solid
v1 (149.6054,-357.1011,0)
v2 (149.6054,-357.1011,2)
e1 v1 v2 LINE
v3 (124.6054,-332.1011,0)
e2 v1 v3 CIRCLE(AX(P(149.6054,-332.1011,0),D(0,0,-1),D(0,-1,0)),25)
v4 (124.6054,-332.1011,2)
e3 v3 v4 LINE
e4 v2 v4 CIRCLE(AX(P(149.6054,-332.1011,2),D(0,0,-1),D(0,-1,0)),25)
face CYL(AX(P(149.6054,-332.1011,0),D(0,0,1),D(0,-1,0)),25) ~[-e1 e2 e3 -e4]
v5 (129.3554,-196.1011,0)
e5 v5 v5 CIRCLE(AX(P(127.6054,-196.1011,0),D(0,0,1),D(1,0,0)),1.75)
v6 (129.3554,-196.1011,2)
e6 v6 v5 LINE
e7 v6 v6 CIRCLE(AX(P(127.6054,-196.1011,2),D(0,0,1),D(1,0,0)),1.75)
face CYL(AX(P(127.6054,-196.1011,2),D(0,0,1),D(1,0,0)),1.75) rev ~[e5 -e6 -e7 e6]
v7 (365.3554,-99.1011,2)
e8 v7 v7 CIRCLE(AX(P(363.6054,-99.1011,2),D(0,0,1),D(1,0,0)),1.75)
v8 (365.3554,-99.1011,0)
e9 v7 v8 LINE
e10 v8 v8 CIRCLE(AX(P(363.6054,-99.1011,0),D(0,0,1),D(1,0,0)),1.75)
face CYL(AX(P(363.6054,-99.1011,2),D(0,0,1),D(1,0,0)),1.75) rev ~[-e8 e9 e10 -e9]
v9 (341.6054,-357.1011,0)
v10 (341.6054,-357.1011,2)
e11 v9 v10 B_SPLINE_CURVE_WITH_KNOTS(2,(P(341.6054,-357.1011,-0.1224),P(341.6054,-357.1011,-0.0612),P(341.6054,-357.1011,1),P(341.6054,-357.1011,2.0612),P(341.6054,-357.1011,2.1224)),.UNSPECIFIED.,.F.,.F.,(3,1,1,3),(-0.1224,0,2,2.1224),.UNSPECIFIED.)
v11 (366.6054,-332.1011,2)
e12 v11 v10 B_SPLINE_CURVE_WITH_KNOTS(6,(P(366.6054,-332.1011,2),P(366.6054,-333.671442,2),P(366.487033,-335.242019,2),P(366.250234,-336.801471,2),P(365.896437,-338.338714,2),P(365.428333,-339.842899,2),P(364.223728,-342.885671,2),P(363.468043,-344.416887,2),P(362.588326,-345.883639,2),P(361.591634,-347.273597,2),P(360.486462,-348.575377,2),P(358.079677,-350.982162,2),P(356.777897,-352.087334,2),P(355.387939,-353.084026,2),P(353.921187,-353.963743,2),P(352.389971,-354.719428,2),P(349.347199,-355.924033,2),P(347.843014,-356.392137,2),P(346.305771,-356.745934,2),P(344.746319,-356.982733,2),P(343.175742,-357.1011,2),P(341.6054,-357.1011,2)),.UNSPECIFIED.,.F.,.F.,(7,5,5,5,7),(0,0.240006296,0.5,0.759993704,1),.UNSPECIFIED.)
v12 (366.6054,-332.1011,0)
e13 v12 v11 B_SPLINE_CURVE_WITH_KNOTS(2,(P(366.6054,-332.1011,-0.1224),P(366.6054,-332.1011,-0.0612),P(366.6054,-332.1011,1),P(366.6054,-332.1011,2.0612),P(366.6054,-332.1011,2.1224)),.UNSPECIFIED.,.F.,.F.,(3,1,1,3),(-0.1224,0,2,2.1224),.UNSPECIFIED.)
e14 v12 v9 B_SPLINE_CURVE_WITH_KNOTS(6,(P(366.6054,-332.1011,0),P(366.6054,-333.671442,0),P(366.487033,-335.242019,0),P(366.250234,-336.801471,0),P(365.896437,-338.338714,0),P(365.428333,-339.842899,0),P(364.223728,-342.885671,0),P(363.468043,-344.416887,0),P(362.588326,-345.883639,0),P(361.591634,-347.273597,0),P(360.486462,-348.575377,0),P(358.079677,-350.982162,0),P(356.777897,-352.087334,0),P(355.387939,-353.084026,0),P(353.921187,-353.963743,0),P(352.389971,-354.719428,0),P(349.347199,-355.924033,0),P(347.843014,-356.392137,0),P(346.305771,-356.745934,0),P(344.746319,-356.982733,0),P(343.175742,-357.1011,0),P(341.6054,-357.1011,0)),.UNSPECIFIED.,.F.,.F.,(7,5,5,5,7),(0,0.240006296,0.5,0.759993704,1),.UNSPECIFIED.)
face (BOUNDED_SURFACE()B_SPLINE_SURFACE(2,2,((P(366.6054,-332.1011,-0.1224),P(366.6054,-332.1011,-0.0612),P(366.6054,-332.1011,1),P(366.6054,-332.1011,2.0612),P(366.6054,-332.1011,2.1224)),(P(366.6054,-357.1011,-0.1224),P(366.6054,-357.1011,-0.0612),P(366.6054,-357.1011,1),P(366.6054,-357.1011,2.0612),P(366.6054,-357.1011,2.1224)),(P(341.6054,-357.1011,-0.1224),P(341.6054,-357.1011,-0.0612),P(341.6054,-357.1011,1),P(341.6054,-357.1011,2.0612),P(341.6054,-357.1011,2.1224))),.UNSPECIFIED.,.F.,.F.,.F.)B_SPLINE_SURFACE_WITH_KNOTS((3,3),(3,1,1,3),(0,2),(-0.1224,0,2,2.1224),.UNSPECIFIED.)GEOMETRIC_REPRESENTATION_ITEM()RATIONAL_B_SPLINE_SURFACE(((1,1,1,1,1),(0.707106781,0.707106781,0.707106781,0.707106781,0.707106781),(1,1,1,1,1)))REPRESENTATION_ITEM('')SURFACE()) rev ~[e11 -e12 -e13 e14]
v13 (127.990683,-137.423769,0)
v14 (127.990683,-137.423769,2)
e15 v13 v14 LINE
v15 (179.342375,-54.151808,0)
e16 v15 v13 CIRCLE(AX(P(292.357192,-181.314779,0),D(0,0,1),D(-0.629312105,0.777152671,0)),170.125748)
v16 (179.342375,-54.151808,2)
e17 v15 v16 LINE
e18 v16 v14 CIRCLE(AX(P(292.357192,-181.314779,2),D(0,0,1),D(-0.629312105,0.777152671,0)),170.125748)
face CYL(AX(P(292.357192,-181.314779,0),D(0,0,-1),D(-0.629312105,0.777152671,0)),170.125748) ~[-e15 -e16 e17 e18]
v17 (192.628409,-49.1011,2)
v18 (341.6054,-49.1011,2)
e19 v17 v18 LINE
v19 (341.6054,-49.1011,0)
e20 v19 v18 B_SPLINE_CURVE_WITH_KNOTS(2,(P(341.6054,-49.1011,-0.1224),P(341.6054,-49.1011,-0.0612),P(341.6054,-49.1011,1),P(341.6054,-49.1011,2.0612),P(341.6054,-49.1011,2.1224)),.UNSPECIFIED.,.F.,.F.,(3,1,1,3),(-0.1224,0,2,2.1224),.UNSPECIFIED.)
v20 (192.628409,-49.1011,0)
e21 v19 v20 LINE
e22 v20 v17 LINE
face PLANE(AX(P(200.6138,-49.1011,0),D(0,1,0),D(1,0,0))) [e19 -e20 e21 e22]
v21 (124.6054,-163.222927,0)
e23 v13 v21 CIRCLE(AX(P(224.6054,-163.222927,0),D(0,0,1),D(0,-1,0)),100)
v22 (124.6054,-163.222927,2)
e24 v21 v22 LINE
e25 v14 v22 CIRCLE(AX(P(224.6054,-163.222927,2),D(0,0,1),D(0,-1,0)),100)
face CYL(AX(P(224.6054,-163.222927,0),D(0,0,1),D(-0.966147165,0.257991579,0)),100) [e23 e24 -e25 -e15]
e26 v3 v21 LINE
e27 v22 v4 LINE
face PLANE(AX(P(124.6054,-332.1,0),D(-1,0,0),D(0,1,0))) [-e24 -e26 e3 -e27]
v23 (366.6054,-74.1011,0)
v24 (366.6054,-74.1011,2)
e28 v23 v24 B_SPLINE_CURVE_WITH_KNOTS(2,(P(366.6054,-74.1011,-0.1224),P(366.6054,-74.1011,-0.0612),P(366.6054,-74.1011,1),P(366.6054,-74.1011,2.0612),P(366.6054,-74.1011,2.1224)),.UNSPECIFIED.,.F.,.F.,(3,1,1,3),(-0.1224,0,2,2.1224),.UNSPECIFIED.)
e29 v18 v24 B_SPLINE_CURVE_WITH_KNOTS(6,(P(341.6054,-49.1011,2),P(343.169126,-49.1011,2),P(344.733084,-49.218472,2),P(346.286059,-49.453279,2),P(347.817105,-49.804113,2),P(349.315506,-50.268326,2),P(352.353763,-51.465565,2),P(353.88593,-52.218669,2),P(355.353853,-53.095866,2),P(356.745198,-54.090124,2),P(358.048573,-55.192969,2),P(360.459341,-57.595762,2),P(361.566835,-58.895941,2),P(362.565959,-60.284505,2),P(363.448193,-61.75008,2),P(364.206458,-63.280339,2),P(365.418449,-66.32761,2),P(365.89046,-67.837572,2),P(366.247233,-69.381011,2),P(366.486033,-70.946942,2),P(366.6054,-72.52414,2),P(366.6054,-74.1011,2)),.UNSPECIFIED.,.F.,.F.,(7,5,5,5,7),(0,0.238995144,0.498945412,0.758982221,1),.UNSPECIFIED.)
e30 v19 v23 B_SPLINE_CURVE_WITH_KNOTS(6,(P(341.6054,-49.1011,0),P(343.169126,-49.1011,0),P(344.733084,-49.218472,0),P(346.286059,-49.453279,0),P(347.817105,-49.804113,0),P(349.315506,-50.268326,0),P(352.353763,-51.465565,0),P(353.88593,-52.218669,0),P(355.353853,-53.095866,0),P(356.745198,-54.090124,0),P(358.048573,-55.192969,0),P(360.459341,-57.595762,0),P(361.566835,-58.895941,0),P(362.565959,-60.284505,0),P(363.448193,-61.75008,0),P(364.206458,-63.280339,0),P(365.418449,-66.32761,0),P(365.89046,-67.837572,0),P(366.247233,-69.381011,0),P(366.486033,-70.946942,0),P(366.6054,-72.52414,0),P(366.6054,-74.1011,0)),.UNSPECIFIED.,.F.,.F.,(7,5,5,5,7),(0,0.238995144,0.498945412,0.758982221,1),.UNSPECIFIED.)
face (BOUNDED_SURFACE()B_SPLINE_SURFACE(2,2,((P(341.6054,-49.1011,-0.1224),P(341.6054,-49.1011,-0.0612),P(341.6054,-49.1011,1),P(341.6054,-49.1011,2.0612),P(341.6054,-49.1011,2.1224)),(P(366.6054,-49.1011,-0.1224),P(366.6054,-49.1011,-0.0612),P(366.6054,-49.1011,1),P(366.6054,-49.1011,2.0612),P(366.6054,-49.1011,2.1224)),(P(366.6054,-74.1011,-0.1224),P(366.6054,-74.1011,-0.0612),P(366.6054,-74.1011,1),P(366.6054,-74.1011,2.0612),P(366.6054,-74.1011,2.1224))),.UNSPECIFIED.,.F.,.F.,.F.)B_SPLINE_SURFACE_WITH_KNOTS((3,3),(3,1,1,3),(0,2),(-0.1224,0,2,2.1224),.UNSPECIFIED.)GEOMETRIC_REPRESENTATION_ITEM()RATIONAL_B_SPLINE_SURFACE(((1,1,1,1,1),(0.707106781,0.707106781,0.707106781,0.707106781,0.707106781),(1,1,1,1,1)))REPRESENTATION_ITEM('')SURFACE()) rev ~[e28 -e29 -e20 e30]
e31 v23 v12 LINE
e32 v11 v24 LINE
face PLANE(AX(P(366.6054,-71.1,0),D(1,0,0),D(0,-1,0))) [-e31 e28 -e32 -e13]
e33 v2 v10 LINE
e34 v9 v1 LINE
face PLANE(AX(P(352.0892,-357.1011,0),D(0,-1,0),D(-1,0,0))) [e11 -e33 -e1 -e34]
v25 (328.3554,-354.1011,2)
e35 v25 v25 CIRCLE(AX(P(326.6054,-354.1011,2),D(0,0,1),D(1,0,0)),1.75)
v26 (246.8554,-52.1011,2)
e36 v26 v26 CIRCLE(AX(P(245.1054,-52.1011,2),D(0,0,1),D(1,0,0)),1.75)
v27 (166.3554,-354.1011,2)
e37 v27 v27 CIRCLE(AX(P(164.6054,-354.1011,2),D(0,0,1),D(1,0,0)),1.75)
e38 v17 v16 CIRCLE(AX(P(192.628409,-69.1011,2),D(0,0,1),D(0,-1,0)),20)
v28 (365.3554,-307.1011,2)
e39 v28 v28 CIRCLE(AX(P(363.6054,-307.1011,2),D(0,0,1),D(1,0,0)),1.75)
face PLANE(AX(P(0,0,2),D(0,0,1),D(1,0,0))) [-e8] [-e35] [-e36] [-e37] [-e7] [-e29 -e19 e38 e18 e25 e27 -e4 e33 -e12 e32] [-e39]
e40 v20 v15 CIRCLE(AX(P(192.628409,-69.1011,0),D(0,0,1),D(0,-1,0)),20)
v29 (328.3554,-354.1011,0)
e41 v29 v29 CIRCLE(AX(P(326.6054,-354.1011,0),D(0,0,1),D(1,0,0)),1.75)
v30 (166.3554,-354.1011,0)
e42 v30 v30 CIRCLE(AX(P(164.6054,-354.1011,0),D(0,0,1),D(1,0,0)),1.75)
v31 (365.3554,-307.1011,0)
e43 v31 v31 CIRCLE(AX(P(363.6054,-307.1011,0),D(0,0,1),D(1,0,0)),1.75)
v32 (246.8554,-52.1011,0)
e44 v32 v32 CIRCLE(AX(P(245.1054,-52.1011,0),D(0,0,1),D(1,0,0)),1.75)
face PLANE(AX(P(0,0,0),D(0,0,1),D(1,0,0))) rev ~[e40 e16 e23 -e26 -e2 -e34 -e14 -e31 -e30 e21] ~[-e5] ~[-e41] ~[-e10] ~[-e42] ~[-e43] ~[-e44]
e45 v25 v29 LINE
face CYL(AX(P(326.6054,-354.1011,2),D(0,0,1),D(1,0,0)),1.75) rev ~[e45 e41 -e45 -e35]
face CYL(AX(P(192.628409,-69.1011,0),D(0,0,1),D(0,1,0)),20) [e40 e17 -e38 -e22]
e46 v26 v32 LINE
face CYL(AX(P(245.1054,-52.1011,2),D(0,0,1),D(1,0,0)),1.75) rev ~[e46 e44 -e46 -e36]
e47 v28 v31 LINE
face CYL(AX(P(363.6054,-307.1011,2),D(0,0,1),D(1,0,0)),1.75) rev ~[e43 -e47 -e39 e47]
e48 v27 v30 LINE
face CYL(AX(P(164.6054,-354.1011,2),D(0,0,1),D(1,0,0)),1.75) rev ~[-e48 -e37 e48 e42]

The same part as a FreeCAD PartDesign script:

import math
import FreeCAD as App
import Part
import Sketcher
Q = App.Units.Quantity


def edges_at(feature, points):
    """Names of the edges that pass closest to the given points."""
    edges = feature.Shape.Edges
    near = lambda p: min(range(len(edges)), key=lambda i: edges[i].distToShape(Part.Vertex(*p))[0])
    return sorted({f"Edge{near(p) + 1}" for p in points})

doc = App.newDocument("Part")
params = doc.addObject("Spreadsheet::Sheet", "Params")
for row, (alias, value) in enumerate([
    ("sketch1_width", "242 mm"),
    ("sketch1_height", "308 mm"),
    ("pad1_length", "2 mm"),
    ("fillet_radius", "25 mm"),
    ("sketch2_diameter", "3.5 mm"),
    ("pocket1_length", "2 mm"),
    ("fillet2_radius", "20 mm"),
    ("fillet3_radius", "100 mm"),
], start=1):
    params.set(f"A{row}", alias)
    params.set(f"B{row}", "=" + value)
    params.setAlias(f"B{row}", alias)

body = doc.addObject("PartDesign::Body", "Body")

sketch1 = body.newObject("Sketcher::SketchObject", "Sketch")
sketch1.AttachmentSupport = (doc.getObject("XY_Plane"), [""])
sketch1.MapMode = "FlatFace"
sketch1.addGeometry(Part.LineSegment(App.Vector(366.6054, -49.1011, 0), App.Vector(185.295, -49.1011, 0)), False)
sketch1.addGeometry(Part.ArcOfCircle(Part.Circle(App.Vector(292.3571, -181.3147, 0), App.Vector(0, 0, 1), 170.125628), math.radians(128.999382), math.radians(170.41716)), False)
sketch1.addGeometry(Part.LineSegment(App.Vector(124.6054, -152.9933, 0), App.Vector(124.6054, -357.1011, 0)), False)
sketch1.addGeometry(Part.LineSegment(App.Vector(124.6054, -357.1011, 0), App.Vector(366.6054, -357.1011, 0)), False)
sketch1.addGeometry(Part.LineSegment(App.Vector(366.6054, -357.1011, 0), App.Vector(366.6054, -49.1011, 0)), False)
sketch1.addConstraint(Sketcher.Constraint("Coincident", 0, 2, 1, 1))
sketch1.addConstraint(Sketcher.Constraint("Coincident", 1, 2, 2, 1))
sketch1.addConstraint(Sketcher.Constraint("Coincident", 2, 2, 3, 1))
sketch1.addConstraint(Sketcher.Constraint("Coincident", 3, 2, 4, 1))
sketch1.addConstraint(Sketcher.Constraint("Coincident", 4, 2, 0, 1))
sketch1.addConstraint(Sketcher.Constraint("Horizontal", 0))
sketch1.addConstraint(Sketcher.Constraint("Vertical", 2))
sketch1.addConstraint(Sketcher.Constraint("Horizontal", 3))
sketch1.addConstraint(Sketcher.Constraint("Vertical", 4))
sketch1.addConstraint(Sketcher.Constraint("DistanceX", 3, 1, 3, 2, Q("242 mm")))
sketch1.addConstraint(Sketcher.Constraint("DistanceY", 4, 1, 4, 2, Q("308 mm")))
sketch1.addConstraint(Sketcher.Constraint("Radius", 1, Q("170.1256 mm")))
sketch1.addConstraint(Sketcher.Constraint("DistanceX", 0, 2, 0, 1, Q("181.3104 mm")))
sketch1.addConstraint(Sketcher.Constraint("DistanceY", 2, 2, 2, 1, Q("204.1078 mm")))
sketch1.addConstraint(Sketcher.Constraint("DistanceX", -1, 1, 1, 3, Q("292.357 mm")))
sketch1.addConstraint(Sketcher.Constraint("DistanceY", 0, 2, -1, 1, Q("49.101 mm")))
sketch1.setExpression("Constraints[9]", "Params.sketch1_width")
sketch1.setExpression("Constraints[10]", "Params.sketch1_height")
pad1 = body.newObject("PartDesign::Pad", "Pad")
pad1.Profile = sketch1
pad1.setExpression("Length", "Params.pad1_length")
doc.recompute()

fillet = body.newObject("PartDesign::Fillet", "Fillet")
fillet.Base = (pad1, edges_at(pad1, [(366.605, -49.101, 1), (366.605, -357.101, 1), (124.605, -357.101, 1)]))
fillet.setExpression("Radius", "Params.fillet_radius")

sketch2 = body.newObject("Sketcher::SketchObject", "Sketch001")
sketch2.AttachmentSupport = (doc.getObject("XY_Plane"), [""])
sketch2.MapMode = "FlatFace"
sketch2.AttachmentOffset = App.Placement(App.Vector(0, 0, 2), App.Rotation())
sketch2.addGeometry(Part.Circle(App.Vector(164.6054, -354.1011, 0), App.Vector(0, 0, 1), 1.75), False)
sketch2.addGeometry(Part.Circle(App.Vector(326.6054, -354.1011, 0), App.Vector(0, 0, 1), 1.75), False)
sketch2.addGeometry(Part.Circle(App.Vector(127.6054, -196.1011, 0), App.Vector(0, 0, 1), 1.75), False)
sketch2.addGeometry(Part.Circle(App.Vector(363.6054, -307.1011, 0), App.Vector(0, 0, 1), 1.75), False)
sketch2.addGeometry(Part.Circle(App.Vector(363.6054, -99.1011, 0), App.Vector(0, 0, 1), 1.75), False)
sketch2.addGeometry(Part.Circle(App.Vector(245.1054, -52.1011, 0), App.Vector(0, 0, 1), 1.75), False)
sketch2.addConstraint(Sketcher.Constraint("Equal", 0, 1))
sketch2.addConstraint(Sketcher.Constraint("Equal", 1, 2))
sketch2.addConstraint(Sketcher.Constraint("Equal", 2, 3))
sketch2.addConstraint(Sketcher.Constraint("Equal", 3, 4))
sketch2.addConstraint(Sketcher.Constraint("Equal", 4, 5))
sketch2.addConstraint(Sketcher.Constraint("Horizontal", 0, 3, 1, 3))
sketch2.addConstraint(Sketcher.Constraint("Vertical", 3, 3, 4, 3))
sketch2.addConstraint(Sketcher.Constraint("Diameter", 0, Q("3.5 mm")))
sketch2.addConstraint(Sketcher.Constraint("DistanceX", 0, 3, 1, 3, Q("162 mm")))
sketch2.addConstraint(Sketcher.Constraint("DistanceX", 2, 3, 0, 3, Q("37 mm")))
sketch2.addConstraint(Sketcher.Constraint("DistanceY", 0, 3, 2, 3, Q("158 mm")))
sketch2.addConstraint(Sketcher.Constraint("DistanceX", 1, 3, 3, 3, Q("37 mm")))
sketch2.addConstraint(Sketcher.Constraint("DistanceY", 1, 3, 3, 3, Q("47 mm")))
sketch2.addConstraint(Sketcher.Constraint("DistanceY", 3, 3, 4, 3, Q("208 mm")))
sketch2.addConstraint(Sketcher.Constraint("DistanceY", 4, 3, 5, 3, Q("47 mm")))
sketch2.addConstraint(Sketcher.Constraint("DistanceX", 5, 3, 4, 3, Q("118.5 mm")))
sketch2.addConstraint(Sketcher.Constraint("DistanceY", 0, 3, -1, 1, Q("354.101 mm")))
sketch2.addConstraint(Sketcher.Constraint("DistanceX", -1, 1, 0, 3, Q("164.6054 mm")))
sketch2.setExpression("Constraints[7]", "Params.sketch2_diameter")
pocket1 = body.newObject("PartDesign::Pocket", "Pocket")
pocket1.Profile = sketch2
pocket1.setExpression("Length", "Params.pocket1_length")
doc.recompute()

fillet2 = body.newObject("PartDesign::Fillet", "Fillet001")
fillet2.Base = (pocket1, edges_at(pocket1, [(185.295, -49.101, 1)]))
fillet2.setExpression("Radius", "Params.fillet2_radius")
doc.recompute()

fillet3 = body.newObject("PartDesign::Fillet", "Fillet002")
fillet3.Base = (fillet2, edges_at(fillet2, [(124.605, -152.993, 1)]))
fillet3.setExpression("Radius", "Params.fillet3_radius")

doc.recompute()
